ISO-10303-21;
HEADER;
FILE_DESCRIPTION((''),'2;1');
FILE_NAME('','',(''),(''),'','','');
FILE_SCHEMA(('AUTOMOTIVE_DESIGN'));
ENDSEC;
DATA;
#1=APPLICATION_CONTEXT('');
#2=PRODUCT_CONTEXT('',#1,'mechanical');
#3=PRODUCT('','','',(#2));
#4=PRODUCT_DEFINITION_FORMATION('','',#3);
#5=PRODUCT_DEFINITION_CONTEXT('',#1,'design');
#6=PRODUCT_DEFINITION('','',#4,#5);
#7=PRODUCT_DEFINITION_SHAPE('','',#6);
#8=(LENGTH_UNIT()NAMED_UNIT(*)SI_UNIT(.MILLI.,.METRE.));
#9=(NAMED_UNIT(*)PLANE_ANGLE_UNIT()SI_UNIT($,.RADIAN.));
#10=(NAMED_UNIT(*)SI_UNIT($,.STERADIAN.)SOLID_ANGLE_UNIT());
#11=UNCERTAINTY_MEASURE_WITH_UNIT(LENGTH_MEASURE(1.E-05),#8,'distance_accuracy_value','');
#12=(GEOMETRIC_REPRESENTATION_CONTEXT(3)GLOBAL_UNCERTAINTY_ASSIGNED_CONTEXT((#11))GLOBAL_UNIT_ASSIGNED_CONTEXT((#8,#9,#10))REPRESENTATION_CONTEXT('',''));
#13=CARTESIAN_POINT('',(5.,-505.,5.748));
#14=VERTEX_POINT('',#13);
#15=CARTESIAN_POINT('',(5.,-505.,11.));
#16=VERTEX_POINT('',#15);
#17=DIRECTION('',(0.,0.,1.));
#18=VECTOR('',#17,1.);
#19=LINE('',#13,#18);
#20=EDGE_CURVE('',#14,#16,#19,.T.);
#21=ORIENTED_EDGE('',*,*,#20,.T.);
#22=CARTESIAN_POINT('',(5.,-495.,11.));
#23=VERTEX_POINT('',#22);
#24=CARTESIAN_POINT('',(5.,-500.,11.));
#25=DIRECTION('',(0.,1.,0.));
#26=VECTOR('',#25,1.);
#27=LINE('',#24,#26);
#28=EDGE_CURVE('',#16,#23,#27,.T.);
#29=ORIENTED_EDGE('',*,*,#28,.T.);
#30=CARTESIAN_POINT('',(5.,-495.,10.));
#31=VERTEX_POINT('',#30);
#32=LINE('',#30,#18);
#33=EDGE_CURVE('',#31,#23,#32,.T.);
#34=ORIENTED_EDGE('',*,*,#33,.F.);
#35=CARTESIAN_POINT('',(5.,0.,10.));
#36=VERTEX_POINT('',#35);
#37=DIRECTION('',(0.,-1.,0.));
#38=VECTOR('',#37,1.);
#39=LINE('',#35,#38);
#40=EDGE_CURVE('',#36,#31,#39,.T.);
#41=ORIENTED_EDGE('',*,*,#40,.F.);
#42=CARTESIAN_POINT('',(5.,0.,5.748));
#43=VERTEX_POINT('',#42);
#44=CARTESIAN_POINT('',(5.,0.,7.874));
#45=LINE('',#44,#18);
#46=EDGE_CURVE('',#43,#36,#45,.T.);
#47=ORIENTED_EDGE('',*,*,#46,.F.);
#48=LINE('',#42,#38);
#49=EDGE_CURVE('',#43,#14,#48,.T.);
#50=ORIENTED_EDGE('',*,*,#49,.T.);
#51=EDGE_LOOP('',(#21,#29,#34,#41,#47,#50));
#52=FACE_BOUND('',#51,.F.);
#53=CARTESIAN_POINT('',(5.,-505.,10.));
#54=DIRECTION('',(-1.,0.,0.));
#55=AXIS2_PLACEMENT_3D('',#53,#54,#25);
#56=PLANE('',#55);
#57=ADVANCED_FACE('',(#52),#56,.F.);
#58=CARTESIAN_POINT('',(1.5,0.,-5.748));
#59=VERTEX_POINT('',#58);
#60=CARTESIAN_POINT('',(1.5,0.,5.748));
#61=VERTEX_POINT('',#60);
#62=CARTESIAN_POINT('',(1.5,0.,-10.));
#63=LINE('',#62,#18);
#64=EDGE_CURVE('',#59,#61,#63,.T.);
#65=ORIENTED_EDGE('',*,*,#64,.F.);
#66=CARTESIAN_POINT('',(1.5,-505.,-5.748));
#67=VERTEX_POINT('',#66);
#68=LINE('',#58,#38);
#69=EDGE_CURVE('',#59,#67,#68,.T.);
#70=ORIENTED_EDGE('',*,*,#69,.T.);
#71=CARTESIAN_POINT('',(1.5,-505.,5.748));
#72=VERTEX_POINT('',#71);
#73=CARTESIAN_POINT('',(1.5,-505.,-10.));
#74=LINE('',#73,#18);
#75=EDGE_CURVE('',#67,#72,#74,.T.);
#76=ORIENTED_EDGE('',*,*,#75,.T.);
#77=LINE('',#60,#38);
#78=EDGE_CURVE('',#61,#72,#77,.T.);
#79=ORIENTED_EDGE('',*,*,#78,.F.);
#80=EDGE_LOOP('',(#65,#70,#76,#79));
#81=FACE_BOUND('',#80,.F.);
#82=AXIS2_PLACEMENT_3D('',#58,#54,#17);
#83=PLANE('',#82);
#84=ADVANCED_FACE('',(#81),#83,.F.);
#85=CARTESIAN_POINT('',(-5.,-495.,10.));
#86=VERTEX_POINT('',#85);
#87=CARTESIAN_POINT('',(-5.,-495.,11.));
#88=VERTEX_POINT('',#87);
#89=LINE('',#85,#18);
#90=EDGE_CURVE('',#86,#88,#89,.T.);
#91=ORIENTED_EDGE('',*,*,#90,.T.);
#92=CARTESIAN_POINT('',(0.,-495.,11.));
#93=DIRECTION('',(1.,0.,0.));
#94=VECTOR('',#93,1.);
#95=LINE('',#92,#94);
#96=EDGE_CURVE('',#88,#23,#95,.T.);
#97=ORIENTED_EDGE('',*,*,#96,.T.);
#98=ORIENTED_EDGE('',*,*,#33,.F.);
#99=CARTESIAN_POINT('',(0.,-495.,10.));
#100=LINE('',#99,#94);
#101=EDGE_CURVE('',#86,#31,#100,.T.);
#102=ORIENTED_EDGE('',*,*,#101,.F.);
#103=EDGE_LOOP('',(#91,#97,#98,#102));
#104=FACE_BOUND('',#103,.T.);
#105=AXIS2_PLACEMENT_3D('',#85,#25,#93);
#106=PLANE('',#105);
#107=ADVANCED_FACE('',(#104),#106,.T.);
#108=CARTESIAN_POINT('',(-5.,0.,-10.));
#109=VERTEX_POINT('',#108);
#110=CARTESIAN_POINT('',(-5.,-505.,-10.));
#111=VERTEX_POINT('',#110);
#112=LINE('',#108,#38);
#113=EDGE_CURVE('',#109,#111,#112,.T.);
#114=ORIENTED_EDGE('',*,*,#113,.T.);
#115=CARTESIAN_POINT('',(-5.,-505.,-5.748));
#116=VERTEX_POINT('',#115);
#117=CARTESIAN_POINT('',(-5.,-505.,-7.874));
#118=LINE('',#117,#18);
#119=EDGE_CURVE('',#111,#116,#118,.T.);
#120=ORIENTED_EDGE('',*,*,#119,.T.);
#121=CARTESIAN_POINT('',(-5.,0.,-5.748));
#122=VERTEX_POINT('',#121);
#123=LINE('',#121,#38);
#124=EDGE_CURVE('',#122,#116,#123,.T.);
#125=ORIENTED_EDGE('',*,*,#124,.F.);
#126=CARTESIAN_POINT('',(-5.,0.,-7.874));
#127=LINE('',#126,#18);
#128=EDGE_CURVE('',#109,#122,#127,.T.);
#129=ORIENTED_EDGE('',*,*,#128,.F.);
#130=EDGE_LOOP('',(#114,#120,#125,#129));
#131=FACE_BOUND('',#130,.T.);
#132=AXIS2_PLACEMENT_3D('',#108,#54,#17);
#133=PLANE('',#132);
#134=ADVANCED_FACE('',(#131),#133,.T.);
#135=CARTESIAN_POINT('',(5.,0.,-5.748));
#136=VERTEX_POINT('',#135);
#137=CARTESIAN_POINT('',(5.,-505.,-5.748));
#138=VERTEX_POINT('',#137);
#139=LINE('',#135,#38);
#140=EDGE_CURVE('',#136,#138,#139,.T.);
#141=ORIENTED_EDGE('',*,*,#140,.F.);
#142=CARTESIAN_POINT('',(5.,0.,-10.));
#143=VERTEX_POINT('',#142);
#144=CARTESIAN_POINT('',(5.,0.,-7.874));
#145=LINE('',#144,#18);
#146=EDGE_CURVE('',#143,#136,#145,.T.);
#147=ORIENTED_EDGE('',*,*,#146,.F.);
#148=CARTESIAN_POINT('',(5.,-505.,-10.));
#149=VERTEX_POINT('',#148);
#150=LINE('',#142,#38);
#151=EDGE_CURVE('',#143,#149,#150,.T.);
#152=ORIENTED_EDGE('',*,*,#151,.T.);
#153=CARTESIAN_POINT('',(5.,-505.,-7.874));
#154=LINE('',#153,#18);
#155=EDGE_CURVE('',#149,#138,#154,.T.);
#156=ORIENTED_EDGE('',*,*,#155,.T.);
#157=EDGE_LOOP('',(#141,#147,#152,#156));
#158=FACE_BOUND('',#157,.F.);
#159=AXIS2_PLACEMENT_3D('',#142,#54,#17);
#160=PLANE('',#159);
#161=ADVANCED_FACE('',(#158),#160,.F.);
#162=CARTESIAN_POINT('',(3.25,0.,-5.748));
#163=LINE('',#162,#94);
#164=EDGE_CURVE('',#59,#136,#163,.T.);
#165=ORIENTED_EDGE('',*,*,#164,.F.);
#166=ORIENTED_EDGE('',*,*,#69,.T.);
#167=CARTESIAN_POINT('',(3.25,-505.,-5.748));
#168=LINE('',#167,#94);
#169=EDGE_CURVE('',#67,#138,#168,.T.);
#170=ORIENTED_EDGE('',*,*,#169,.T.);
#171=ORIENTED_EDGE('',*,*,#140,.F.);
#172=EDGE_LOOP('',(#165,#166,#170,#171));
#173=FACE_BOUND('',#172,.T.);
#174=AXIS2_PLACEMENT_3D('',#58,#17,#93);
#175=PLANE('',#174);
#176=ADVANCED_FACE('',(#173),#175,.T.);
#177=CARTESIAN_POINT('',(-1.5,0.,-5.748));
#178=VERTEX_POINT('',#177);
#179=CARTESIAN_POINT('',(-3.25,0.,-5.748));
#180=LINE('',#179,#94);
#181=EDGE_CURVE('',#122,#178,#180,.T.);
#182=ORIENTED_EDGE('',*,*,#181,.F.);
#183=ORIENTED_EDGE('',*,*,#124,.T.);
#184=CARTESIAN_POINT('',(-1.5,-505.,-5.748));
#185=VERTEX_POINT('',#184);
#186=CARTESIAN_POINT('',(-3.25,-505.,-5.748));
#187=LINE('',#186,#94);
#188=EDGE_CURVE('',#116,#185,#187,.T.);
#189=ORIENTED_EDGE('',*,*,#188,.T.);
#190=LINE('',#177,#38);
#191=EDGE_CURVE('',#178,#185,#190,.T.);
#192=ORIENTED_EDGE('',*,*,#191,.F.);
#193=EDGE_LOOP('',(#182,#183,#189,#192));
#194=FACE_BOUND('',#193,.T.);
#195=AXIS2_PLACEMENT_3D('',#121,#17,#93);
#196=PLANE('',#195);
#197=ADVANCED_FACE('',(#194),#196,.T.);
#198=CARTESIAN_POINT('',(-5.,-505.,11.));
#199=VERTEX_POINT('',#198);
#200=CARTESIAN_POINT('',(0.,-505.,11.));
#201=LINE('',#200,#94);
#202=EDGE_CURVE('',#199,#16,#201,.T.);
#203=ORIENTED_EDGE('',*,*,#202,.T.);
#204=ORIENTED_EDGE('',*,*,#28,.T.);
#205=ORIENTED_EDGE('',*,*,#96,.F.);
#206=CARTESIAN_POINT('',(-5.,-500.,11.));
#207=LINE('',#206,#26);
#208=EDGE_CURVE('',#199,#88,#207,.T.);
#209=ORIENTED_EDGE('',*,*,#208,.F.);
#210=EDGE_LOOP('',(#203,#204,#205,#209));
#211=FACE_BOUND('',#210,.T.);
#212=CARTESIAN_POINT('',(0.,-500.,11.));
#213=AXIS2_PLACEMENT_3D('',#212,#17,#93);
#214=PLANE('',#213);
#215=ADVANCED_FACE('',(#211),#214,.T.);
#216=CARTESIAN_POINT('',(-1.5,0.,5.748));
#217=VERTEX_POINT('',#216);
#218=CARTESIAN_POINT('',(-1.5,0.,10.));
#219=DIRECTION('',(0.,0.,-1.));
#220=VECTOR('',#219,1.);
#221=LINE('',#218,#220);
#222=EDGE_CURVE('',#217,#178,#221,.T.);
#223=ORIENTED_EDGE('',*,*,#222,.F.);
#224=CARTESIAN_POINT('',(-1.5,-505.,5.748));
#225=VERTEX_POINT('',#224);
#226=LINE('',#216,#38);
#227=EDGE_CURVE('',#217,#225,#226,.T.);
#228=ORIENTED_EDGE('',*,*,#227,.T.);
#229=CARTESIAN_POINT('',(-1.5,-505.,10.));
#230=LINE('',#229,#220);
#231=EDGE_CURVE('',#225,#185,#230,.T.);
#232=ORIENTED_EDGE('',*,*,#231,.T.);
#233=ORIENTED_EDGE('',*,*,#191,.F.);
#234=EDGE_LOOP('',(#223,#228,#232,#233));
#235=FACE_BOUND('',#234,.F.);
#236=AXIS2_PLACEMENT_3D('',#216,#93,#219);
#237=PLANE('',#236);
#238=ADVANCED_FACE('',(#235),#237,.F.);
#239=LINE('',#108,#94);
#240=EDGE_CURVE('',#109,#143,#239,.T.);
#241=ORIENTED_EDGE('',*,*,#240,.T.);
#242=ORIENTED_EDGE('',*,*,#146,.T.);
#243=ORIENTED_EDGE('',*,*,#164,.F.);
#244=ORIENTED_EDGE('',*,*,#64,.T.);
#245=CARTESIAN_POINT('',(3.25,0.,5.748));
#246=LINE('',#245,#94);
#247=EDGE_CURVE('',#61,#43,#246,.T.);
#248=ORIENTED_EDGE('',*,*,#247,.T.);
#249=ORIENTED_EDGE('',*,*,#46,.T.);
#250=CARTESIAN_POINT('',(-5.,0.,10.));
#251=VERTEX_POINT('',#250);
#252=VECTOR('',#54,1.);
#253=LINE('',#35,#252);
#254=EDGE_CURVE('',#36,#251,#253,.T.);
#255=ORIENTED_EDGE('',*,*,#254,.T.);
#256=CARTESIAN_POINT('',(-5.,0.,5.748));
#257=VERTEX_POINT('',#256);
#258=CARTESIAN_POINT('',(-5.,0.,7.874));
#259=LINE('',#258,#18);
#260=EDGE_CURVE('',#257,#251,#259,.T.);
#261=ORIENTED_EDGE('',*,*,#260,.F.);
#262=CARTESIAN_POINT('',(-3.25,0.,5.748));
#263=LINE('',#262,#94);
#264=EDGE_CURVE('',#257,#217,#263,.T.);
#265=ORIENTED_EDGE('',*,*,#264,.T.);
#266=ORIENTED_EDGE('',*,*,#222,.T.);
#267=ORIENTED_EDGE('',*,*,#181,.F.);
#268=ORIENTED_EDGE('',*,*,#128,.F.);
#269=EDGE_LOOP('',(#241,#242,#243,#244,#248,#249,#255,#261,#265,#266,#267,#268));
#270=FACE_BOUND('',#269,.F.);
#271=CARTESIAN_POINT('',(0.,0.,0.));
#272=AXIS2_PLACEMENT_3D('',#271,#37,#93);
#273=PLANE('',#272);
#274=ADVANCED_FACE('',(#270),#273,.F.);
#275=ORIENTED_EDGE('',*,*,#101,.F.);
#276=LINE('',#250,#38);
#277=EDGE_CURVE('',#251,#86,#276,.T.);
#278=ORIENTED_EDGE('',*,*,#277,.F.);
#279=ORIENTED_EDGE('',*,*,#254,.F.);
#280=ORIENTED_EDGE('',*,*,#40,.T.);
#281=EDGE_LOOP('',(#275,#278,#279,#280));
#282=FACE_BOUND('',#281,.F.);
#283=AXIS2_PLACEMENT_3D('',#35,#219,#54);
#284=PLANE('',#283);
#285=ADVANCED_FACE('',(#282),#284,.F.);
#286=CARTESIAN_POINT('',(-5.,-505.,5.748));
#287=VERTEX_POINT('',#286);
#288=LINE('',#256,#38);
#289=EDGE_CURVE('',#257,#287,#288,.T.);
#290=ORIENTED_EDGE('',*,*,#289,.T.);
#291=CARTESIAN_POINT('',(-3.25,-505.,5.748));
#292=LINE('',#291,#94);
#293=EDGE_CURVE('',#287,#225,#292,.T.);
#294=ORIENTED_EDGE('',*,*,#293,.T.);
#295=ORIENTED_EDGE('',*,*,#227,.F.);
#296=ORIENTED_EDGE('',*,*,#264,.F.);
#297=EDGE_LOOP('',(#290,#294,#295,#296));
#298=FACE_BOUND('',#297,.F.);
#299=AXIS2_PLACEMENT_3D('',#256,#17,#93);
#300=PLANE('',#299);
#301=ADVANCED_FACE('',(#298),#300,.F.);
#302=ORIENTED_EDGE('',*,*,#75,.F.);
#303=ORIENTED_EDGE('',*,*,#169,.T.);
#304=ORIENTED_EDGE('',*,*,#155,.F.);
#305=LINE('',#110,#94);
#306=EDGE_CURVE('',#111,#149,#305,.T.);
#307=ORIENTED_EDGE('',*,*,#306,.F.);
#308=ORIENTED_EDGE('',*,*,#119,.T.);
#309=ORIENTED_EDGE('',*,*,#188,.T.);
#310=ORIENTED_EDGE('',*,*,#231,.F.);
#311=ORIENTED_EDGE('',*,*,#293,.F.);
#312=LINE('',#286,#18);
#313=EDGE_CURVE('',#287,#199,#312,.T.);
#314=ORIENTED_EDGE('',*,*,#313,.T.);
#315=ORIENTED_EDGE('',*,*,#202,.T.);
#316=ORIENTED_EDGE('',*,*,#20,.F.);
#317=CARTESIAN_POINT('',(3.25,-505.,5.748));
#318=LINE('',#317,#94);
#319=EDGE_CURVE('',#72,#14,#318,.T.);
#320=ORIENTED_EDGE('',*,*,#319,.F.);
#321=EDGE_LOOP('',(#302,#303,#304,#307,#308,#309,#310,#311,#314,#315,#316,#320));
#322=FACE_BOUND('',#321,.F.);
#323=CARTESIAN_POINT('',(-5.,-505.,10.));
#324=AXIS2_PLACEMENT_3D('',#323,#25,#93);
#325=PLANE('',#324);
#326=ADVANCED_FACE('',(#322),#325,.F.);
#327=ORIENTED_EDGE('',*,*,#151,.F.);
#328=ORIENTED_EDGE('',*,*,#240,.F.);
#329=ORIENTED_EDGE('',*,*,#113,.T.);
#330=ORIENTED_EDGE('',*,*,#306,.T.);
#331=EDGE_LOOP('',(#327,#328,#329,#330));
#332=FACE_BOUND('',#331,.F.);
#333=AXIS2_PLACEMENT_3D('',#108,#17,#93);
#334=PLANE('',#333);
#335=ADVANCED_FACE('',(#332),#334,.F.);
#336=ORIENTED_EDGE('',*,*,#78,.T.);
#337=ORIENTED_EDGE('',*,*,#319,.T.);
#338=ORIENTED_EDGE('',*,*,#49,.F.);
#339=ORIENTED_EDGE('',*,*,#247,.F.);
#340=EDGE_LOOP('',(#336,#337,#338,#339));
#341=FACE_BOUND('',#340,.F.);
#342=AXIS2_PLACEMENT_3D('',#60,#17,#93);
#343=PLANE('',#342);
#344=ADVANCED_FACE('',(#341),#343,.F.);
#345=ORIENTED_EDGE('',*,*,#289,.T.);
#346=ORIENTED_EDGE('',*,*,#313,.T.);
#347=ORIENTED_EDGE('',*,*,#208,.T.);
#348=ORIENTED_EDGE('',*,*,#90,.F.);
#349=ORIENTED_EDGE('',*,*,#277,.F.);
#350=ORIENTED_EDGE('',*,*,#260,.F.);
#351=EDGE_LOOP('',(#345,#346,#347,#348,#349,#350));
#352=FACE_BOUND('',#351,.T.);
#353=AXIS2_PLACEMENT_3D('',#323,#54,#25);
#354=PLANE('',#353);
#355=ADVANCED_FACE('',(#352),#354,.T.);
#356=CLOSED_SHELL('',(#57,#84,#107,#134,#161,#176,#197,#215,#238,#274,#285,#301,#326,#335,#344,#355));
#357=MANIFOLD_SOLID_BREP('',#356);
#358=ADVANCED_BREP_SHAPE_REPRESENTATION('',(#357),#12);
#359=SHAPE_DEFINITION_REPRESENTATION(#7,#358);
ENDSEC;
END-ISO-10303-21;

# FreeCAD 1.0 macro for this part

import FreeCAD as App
import Part
import Sketcher
from FreeCAD import Vector


def add_polygon(sketch, points):
    """Adds a closed chain of lines whose ends are joined by coincident constraints."""
    first, n = sketch.GeometryCount, len(points)
    for a, b in zip(points, points[1:] + points[:1]):
        sketch.addGeometry(Part.LineSegment(App.Vector(*a, 0), App.Vector(*b, 0)), False)
    for i in range(n):
        sketch.addConstraint(Sketcher.Constraint("Coincident", first + i, 2, first + (i + 1) % n, 1))

doc = App.newDocument("Part")
body = doc.addObject("PartDesign::Body", "Body")

# Sketch on XZ plane
sketch1 = body.newObject("Sketcher::SketchObject", "Sketch")
sketch1.AttachmentSupport = (doc.getObject("XZ_Plane"), [""])
sketch1.MapMode = "FlatFace"
add_polygon(sketch1, [(-1.5, 5.7), (-1.5, -5.7), (-5, -5.7), (-5, -10), (5, -10), (5, -5.7), (1.5, -5.7), (1.5, 5.7), (5, 5.7), (5, 10), (-5, 10), (-5, 5.7)])  # lines 0-11
sketch1.addConstraint([
    Sketcher.Constraint("Vertical", 0),
    Sketcher.Constraint("Horizontal", 1),
    Sketcher.Constraint("Vertical", 2),
    Sketcher.Constraint("Horizontal", 3),
    Sketcher.Constraint("Vertical", 4),
    Sketcher.Constraint("Horizontal", 5),
    Sketcher.Constraint("Vertical", 6),
    Sketcher.Constraint("Horizontal", 7),
    Sketcher.Constraint("Vertical", 8),
    Sketcher.Constraint("Horizontal", 9),
    Sketcher.Constraint("Vertical", 10),
    Sketcher.Constraint("Horizontal", 11),
    Sketcher.Constraint("Symmetric", 0, 2, 6, 2, -1, 1),
    Sketcher.Constraint("Symmetric", 2, 2, 8, 2, -1, 1),
    Sketcher.Constraint("Symmetric", 4, 2, 10, 2, -1, 1),
    Sketcher.Constraint("Symmetric", 1, 2, 4, 2, -2),
    Sketcher.Constraint("DistanceX", 3, 1, 3, 2, 10.0),
    Sketcher.Constraint("DistanceX", 1, 2, 1, 1, 3.5),
    Sketcher.Constraint("DistanceY", 2, 2, -1, 1, 10.0),
    Sketcher.Constraint("DistanceY", 0, 2, 0, 1, 11.496),
])
pad1 = body.newObject("PartDesign::Pad", "Pad")
pad1.Profile = sketch1
pad1.Length = 505

# Sketch on XY plane
sketch2 = body.newObject("Sketcher::SketchObject", "Sketch001")
sketch2.AttachmentSupport = (doc.getObject("XY_Plane"), [""])
sketch2.MapMode = "FlatFace"
sketch2.AttachmentOffset = App.Placement(Vector(0, 0, 10), App.Rotation())
add_polygon(sketch2, [(-5, -495), (-5, -505), (5, -505), (5, -495)])  # lines 0-3
sketch2.addConstraint([
    Sketcher.Constraint("Vertical", 0),
    Sketcher.Constraint("Horizontal", 1),
    Sketcher.Constraint("Vertical", 2),
    Sketcher.Constraint("Horizontal", 3),
    Sketcher.Constraint("Equal", 3, 0),
    Sketcher.Constraint("DistanceX", 1, 1, 1, 2, 10.0),
    Sketcher.Constraint("DistanceX", 0, 2, -1, 1, 5.0),
    Sketcher.Constraint("DistanceY", 0, 2, -1, 1, 505.0),
])
pad2 = body.newObject("PartDesign::Pad", "Pad001")
pad2.Profile = sketch2
pad2.Length = 1

doc.recompute()
